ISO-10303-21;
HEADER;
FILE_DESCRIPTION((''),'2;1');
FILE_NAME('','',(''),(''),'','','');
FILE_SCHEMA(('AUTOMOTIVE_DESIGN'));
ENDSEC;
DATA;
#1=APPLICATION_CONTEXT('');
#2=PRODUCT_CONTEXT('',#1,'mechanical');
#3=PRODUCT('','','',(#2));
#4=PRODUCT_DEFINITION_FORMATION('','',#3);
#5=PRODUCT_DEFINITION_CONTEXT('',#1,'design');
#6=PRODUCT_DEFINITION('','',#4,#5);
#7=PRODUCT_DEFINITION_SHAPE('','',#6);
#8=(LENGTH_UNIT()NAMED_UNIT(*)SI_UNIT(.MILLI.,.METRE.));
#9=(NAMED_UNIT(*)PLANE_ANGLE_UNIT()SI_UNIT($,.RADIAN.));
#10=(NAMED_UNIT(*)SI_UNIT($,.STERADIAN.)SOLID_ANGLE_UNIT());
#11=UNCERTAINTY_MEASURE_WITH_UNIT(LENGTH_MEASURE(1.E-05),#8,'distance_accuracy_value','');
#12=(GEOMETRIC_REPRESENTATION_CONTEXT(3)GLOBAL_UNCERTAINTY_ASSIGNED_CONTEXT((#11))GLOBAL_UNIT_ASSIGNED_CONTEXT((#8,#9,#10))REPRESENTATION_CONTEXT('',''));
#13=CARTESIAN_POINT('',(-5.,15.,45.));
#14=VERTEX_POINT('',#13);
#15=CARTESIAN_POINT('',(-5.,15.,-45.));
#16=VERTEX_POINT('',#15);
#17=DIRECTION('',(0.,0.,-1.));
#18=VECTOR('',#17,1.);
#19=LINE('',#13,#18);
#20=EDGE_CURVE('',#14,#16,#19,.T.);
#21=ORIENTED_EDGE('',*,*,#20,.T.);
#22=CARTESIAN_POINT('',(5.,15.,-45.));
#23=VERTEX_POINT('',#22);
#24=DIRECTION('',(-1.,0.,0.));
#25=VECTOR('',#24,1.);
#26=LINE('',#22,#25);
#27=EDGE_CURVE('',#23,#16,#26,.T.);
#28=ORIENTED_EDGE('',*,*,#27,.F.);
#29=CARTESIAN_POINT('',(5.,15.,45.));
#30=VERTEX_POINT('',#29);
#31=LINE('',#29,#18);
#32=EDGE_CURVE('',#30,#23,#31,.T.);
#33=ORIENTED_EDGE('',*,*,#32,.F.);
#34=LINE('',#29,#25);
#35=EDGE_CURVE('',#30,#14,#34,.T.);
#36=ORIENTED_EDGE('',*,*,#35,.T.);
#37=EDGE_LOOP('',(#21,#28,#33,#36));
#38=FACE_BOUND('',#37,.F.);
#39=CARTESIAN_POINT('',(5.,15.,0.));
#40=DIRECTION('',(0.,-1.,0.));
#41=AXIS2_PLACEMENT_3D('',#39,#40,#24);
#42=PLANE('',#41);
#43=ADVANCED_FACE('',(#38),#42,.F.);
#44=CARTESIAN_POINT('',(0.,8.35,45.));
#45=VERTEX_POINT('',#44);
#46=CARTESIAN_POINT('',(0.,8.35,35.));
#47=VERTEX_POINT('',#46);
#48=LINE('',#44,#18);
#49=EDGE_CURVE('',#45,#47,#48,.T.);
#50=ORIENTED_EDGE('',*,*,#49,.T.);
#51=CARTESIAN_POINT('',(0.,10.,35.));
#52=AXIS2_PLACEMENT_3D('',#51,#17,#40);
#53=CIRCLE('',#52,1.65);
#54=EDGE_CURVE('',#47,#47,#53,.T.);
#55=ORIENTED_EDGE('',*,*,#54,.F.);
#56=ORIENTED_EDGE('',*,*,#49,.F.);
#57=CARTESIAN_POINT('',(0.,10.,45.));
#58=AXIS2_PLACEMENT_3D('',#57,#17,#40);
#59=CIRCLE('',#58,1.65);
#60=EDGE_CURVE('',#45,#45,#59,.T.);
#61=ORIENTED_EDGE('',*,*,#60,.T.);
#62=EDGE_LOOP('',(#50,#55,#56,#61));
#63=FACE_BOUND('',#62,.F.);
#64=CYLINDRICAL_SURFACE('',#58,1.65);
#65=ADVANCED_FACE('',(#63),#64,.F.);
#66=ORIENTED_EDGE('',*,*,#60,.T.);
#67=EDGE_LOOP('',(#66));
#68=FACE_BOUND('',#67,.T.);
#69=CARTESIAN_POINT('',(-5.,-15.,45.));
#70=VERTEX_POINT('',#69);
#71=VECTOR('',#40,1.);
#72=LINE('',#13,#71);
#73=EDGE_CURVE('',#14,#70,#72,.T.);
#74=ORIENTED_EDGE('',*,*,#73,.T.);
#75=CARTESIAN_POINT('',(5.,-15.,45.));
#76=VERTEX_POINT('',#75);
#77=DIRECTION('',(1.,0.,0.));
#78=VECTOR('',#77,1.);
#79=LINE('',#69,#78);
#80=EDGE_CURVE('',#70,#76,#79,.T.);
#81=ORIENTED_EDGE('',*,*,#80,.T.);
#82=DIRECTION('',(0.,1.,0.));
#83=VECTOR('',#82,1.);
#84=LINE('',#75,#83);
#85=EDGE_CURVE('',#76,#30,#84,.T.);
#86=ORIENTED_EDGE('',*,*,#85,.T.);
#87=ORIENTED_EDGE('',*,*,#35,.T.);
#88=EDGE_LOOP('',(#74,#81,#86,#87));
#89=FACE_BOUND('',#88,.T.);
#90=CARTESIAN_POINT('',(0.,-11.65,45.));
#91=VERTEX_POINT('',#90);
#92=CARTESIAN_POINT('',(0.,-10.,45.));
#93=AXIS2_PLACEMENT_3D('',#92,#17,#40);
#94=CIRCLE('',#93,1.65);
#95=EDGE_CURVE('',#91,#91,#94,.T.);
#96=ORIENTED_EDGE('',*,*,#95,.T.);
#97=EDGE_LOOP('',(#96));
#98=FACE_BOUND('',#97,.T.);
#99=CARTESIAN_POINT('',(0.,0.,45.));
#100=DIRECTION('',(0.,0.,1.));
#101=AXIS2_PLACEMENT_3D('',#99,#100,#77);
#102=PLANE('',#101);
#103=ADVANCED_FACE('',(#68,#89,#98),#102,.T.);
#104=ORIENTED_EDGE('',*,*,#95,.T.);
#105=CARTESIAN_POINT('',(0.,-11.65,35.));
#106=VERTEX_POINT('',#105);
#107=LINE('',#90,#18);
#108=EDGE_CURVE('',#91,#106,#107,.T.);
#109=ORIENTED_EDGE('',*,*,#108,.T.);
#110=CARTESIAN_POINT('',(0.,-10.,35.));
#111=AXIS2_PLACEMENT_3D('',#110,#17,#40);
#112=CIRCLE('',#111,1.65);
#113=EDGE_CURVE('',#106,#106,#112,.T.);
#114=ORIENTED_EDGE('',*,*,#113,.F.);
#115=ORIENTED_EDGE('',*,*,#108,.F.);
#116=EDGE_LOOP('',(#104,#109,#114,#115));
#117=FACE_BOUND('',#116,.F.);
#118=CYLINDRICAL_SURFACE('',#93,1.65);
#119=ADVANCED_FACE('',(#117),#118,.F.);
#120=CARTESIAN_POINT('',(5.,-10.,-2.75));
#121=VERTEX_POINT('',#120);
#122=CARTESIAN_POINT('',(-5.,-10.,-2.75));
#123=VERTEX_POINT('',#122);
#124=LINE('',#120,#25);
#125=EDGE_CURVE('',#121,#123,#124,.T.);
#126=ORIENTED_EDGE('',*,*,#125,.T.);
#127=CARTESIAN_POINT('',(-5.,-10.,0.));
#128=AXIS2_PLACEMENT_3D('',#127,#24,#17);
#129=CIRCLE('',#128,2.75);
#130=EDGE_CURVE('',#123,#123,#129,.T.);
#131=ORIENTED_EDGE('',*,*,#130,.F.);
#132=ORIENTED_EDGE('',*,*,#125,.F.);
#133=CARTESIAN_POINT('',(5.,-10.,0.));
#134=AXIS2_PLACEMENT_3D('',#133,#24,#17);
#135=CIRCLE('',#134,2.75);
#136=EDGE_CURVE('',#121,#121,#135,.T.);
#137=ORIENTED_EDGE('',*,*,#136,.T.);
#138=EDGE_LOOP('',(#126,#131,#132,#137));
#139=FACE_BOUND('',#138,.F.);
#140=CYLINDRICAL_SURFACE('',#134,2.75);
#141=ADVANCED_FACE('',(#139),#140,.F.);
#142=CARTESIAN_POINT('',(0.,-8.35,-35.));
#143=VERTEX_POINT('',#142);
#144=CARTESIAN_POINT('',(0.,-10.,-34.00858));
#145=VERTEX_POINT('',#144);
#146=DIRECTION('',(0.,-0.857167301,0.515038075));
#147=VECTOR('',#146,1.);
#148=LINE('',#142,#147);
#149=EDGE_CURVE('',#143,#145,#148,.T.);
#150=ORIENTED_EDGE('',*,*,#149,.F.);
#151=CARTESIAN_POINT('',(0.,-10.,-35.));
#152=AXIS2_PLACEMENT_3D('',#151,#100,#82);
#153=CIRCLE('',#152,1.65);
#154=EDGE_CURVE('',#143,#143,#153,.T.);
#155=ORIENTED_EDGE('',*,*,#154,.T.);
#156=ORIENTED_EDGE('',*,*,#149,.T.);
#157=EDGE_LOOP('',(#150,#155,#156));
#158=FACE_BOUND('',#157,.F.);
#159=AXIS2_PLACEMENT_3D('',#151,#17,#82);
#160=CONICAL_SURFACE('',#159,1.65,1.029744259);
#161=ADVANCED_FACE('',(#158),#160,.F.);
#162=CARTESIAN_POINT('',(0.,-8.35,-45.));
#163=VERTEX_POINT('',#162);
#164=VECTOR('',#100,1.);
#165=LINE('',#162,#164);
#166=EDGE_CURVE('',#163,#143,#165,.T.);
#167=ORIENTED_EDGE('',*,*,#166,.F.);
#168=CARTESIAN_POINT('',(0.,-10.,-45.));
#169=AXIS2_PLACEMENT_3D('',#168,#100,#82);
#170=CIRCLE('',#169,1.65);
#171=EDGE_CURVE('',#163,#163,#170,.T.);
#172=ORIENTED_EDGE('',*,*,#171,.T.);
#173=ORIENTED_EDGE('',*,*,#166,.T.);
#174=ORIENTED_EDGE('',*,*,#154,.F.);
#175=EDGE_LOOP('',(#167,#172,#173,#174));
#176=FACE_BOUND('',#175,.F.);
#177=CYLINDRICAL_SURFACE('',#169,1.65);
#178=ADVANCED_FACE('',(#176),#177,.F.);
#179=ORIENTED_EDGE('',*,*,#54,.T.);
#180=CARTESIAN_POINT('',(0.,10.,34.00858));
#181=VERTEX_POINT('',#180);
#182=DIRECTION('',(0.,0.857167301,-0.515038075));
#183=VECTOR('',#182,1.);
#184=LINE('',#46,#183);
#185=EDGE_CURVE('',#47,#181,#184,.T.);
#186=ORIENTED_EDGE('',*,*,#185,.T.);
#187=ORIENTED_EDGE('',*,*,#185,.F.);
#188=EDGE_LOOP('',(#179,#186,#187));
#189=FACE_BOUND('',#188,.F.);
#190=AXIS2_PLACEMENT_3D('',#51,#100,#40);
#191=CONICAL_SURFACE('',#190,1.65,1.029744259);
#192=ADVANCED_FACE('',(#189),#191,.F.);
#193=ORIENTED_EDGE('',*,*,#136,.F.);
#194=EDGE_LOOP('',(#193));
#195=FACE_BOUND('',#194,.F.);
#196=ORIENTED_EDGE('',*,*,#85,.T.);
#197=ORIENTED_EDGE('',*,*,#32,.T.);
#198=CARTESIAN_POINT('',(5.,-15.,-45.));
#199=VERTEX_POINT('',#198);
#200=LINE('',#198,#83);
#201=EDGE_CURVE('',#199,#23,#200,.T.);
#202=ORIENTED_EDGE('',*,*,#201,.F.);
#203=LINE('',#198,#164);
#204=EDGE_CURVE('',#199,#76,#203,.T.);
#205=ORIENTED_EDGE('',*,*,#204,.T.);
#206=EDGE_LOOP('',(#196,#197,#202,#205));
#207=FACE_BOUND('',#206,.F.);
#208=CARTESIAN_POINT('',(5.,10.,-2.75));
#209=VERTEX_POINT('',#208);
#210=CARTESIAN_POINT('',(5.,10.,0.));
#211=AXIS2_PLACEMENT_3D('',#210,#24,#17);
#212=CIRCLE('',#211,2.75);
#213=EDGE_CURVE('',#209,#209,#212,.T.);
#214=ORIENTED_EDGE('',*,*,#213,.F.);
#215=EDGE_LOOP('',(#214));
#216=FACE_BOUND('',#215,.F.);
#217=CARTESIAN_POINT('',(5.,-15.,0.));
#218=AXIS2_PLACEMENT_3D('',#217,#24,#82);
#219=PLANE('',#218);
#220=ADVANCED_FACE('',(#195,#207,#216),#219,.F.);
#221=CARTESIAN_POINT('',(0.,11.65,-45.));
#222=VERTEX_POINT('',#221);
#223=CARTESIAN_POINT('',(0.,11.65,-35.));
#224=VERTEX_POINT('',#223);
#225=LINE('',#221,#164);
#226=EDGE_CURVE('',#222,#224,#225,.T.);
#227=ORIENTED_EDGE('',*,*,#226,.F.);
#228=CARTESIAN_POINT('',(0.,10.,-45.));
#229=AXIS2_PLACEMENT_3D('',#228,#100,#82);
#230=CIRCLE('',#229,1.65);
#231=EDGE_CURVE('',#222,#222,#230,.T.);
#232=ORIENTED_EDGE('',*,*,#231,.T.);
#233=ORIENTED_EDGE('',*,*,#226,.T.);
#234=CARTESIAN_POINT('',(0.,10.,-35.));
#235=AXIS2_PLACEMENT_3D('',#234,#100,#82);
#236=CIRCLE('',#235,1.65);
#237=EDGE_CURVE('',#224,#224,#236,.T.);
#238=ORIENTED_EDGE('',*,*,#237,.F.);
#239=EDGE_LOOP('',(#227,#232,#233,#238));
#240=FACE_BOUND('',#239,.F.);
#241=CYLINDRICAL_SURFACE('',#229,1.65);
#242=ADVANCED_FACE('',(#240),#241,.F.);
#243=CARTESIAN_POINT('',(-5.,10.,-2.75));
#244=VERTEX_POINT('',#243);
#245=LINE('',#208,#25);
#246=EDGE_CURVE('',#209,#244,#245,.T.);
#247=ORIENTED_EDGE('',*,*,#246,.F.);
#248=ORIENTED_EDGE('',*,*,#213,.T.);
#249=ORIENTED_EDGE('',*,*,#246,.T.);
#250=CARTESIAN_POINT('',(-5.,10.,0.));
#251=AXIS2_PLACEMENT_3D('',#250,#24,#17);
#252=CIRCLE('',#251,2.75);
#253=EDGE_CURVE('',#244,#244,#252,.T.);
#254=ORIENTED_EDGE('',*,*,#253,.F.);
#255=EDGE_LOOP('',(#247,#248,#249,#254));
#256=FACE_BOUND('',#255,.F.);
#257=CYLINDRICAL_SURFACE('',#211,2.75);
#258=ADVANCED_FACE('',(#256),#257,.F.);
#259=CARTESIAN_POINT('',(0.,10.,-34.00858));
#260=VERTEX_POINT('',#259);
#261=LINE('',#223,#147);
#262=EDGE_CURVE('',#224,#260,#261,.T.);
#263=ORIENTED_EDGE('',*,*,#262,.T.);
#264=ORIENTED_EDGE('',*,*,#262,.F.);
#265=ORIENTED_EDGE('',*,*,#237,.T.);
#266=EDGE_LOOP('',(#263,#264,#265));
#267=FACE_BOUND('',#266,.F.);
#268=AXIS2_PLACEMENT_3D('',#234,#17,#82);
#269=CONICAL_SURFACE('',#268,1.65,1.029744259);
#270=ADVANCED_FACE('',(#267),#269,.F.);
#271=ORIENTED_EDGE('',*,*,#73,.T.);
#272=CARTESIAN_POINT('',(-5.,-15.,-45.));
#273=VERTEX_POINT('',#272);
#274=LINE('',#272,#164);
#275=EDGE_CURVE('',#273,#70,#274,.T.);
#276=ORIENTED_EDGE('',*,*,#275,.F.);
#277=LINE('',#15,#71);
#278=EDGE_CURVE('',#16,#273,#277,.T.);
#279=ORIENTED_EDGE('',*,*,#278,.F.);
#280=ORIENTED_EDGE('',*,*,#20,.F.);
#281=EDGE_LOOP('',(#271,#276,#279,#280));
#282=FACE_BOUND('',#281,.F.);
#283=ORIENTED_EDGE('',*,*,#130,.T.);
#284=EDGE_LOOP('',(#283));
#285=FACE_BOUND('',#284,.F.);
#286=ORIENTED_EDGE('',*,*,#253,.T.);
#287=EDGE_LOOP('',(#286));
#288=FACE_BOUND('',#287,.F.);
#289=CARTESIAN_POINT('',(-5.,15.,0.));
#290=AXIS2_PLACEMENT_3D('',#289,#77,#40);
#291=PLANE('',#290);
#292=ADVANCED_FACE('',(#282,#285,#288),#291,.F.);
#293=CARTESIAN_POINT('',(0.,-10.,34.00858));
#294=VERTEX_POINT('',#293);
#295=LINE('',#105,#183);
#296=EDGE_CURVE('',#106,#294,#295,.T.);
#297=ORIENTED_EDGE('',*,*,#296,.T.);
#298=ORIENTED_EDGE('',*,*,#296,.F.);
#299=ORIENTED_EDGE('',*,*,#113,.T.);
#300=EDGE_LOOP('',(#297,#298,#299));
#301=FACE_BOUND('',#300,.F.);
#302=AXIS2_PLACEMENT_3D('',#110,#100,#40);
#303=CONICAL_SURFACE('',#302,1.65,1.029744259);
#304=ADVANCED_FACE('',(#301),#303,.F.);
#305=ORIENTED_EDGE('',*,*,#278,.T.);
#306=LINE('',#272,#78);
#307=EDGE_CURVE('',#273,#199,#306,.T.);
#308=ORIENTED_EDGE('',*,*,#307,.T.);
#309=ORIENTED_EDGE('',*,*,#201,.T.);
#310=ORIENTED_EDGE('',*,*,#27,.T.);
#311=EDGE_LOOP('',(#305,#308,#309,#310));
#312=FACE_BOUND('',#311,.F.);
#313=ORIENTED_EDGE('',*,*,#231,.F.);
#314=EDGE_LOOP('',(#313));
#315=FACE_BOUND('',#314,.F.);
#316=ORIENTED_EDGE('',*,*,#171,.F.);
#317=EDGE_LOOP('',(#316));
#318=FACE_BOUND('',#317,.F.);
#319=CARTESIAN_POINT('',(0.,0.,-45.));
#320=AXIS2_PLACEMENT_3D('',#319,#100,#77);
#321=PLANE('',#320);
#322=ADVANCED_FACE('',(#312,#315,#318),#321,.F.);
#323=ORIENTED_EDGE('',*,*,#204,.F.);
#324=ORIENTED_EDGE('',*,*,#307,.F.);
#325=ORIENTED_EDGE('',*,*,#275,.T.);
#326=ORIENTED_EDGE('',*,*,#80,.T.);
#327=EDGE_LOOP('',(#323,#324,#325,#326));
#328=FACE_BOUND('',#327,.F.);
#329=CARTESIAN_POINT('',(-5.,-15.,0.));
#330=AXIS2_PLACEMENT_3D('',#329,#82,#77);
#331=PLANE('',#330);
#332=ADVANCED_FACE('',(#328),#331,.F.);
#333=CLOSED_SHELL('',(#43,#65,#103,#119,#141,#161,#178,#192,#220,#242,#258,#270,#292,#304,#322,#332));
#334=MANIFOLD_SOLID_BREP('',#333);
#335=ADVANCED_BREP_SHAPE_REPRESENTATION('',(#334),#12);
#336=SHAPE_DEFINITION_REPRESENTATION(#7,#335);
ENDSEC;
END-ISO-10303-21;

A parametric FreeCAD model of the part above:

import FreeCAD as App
import Part
import Sketcher
Q = App.Units.Quantity

doc = App.newDocument("Part")
params = doc.addObject("Spreadsheet::Sheet", "Params")
for row, (alias, value) in enumerate([
    ("sketch1_width", "10 mm"),
    ("sketch1_height", "30 mm"),
    ("pad1_length", "90 mm"),
    ("sketch2_diameter", "3.3 mm"),
    ("hole_diameter", "3.3 mm"),
    ("hole_depth", "10 mm"),
    ("sketch3_diameter", "3.3 mm"),
    ("hole2_diameter", "3.3 mm"),
    ("hole2_depth", "10 mm"),
    ("sketch4_diameter", "5.5 mm"),
    ("hole3_diameter", "5.5 mm"),
], start=1):
    params.set(f"A{row}", alias)
    params.set(f"B{row}", "=" + value)
    params.setAlias(f"B{row}", alias)

body = doc.addObject("PartDesign::Body", "Body")

sketch1 = body.newObject("Sketcher::SketchObject", "Sketch")
sketch1.AttachmentSupport = (doc.getObject("XY_Plane"), [""])
sketch1.MapMode = "FlatFace"
sketch1.addGeometry([
    Part.LineSegment(App.Vector(-5, 15, 0), App.Vector(-5, -15, 0)),
    Part.LineSegment(App.Vector(-5, -15, 0), App.Vector(5, -15, 0)),
    Part.LineSegment(App.Vector(5, -15, 0), App.Vector(5, 15, 0)),
    Part.LineSegment(App.Vector(5, 15, 0), App.Vector(-5, 15, 0)),
], False)
sketch1.addConstraint([
    Sketcher.Constraint("Coincident", 0, 2, 1, 1),
    Sketcher.Constraint("Coincident", 1, 2, 2, 1),
    Sketcher.Constraint("Coincident", 2, 2, 3, 1),
    Sketcher.Constraint("Coincident", 3, 2, 0, 1),
    Sketcher.Constraint("Vertical", 0),
    Sketcher.Constraint("Horizontal", 1),
    Sketcher.Constraint("Vertical", 2),
    Sketcher.Constraint("Horizontal", 3),
    Sketcher.Constraint("Symmetric", 0, 2, 2, 2, -1, 1),
    Sketcher.Constraint("DistanceX", 1, 1, 1, 2, Q("10 mm")),
    Sketcher.Constraint("DistanceY", 0, 2, 0, 1, Q("30 mm")),
])
sketch1.setExpression("Constraints[9]", "Params.sketch1_width")
sketch1.setExpression("Constraints[10]", "Params.sketch1_height")
pad1 = body.newObject("PartDesign::Pad", "Pad")
pad1.Profile = sketch1
pad1.setExpression("Length", "Params.pad1_length")
pad1.Midplane = True

sketch2 = body.newObject("Sketcher::SketchObject", "Sketch001")
sketch2.AttachmentSupport = (doc.getObject("XY_Plane"), [""])
sketch2.MapMode = "FlatFace"
sketch2.AttachmentOffset = App.Placement(App.Vector(0, 0, 45), App.Rotation())
sketch2.addGeometry([
    Part.Circle(App.Vector(0, 10, 0), App.Vector(0, 0, 1), 1.6),
    Part.Circle(App.Vector(0, -10, 0), App.Vector(0, 0, 1), 1.6),
], False)
sketch2.addConstraint([
    Sketcher.Constraint("Equal", 0, 1),
    Sketcher.Constraint("Symmetric", 0, 3, 1, 3, -1, 1),
    Sketcher.Constraint("PointOnObject", 0, 3, -2),
    Sketcher.Constraint("Diameter", 0, Q("3.3 mm")),
    Sketcher.Constraint("DistanceY", -1, 1, 0, 3, Q("10 mm")),
])
sketch2.setExpression("Constraints[3]", "Params.sketch2_diameter")
doc.recompute()
hole = body.newObject("PartDesign::Hole", "Hole")
hole.Profile = sketch2
hole.ThreadType = "None"
hole.setExpression("Diameter", "Params.hole_diameter")
hole.DepthType = "Dimension"
hole.setExpression("Depth", "Params.hole_depth")
hole.DrillPoint = "Angled"
hole.DrillPointAngle = 118

sketch3 = body.newObject("Sketcher::SketchObject", "Sketch002")
sketch3.AttachmentSupport = (doc.getObject("XY_Plane"), [""])
sketch3.MapMode = "FlatFace"
sketch3.AttachmentOffset = App.Placement(App.Vector(0, 0, -45), App.Rotation())
sketch3.addGeometry([
    Part.Circle(App.Vector(0, 10, 0), App.Vector(0, 0, 1), 1.6),
    Part.Circle(App.Vector(0, -10, 0), App.Vector(0, 0, 1), 1.6),
], False)
sketch3.addConstraint([
    Sketcher.Constraint("Equal", 0, 1),
    Sketcher.Constraint("Symmetric", 0, 3, 1, 3, -1, 1),
    Sketcher.Constraint("PointOnObject", 0, 3, -2),
    Sketcher.Constraint("Diameter", 0, Q("3.3 mm")),
    Sketcher.Constraint("DistanceY", -1, 1, 0, 3, Q("10 mm")),
])
sketch3.setExpression("Constraints[3]", "Params.sketch3_diameter")
doc.recompute()
hole2 = body.newObject("PartDesign::Hole", "Hole001")
hole2.Profile = sketch3
hole2.ThreadType = "None"
hole2.setExpression("Diameter", "Params.hole2_diameter")
hole2.DepthType = "Dimension"
hole2.setExpression("Depth", "Params.hole2_depth")
hole2.DrillPoint = "Angled"
hole2.DrillPointAngle = 118
hole2.Reversed = True

sketch4 = body.newObject("Sketcher::SketchObject", "Sketch003")
sketch4.AttachmentSupport = (doc.getObject("YZ_Plane"), [""])
sketch4.MapMode = "FlatFace"
sketch4.AttachmentOffset = App.Placement(App.Vector(0, 0, 5), App.Rotation())
sketch4.addGeometry([
    Part.Circle(App.Vector(10, 0, 0), App.Vector(0, 0, 1), 2.8),
    Part.Circle(App.Vector(-10, 0, 0), App.Vector(0, 0, 1), 2.8),
], False)
sketch4.addConstraint([
    Sketcher.Constraint("Equal", 0, 1),
    Sketcher.Constraint("Symmetric", 0, 3, 1, 3, -1, 1),
    Sketcher.Constraint("PointOnObject", 0, 3, -1),
    Sketcher.Constraint("Diameter", 0, Q("5.5 mm")),
    Sketcher.Constraint("DistanceX", -1, 1, 0, 3, Q("10 mm")),
])
sketch4.setExpression("Constraints[3]", "Params.sketch4_diameter")
doc.recompute()
hole3 = body.newObject("PartDesign::Hole", "Hole002")
hole3.Profile = sketch4
hole3.ThreadType = "None"
hole3.setExpression("Diameter", "Params.hole3_diameter")
hole3.DepthType = "ThroughAll"

doc.recompute()
